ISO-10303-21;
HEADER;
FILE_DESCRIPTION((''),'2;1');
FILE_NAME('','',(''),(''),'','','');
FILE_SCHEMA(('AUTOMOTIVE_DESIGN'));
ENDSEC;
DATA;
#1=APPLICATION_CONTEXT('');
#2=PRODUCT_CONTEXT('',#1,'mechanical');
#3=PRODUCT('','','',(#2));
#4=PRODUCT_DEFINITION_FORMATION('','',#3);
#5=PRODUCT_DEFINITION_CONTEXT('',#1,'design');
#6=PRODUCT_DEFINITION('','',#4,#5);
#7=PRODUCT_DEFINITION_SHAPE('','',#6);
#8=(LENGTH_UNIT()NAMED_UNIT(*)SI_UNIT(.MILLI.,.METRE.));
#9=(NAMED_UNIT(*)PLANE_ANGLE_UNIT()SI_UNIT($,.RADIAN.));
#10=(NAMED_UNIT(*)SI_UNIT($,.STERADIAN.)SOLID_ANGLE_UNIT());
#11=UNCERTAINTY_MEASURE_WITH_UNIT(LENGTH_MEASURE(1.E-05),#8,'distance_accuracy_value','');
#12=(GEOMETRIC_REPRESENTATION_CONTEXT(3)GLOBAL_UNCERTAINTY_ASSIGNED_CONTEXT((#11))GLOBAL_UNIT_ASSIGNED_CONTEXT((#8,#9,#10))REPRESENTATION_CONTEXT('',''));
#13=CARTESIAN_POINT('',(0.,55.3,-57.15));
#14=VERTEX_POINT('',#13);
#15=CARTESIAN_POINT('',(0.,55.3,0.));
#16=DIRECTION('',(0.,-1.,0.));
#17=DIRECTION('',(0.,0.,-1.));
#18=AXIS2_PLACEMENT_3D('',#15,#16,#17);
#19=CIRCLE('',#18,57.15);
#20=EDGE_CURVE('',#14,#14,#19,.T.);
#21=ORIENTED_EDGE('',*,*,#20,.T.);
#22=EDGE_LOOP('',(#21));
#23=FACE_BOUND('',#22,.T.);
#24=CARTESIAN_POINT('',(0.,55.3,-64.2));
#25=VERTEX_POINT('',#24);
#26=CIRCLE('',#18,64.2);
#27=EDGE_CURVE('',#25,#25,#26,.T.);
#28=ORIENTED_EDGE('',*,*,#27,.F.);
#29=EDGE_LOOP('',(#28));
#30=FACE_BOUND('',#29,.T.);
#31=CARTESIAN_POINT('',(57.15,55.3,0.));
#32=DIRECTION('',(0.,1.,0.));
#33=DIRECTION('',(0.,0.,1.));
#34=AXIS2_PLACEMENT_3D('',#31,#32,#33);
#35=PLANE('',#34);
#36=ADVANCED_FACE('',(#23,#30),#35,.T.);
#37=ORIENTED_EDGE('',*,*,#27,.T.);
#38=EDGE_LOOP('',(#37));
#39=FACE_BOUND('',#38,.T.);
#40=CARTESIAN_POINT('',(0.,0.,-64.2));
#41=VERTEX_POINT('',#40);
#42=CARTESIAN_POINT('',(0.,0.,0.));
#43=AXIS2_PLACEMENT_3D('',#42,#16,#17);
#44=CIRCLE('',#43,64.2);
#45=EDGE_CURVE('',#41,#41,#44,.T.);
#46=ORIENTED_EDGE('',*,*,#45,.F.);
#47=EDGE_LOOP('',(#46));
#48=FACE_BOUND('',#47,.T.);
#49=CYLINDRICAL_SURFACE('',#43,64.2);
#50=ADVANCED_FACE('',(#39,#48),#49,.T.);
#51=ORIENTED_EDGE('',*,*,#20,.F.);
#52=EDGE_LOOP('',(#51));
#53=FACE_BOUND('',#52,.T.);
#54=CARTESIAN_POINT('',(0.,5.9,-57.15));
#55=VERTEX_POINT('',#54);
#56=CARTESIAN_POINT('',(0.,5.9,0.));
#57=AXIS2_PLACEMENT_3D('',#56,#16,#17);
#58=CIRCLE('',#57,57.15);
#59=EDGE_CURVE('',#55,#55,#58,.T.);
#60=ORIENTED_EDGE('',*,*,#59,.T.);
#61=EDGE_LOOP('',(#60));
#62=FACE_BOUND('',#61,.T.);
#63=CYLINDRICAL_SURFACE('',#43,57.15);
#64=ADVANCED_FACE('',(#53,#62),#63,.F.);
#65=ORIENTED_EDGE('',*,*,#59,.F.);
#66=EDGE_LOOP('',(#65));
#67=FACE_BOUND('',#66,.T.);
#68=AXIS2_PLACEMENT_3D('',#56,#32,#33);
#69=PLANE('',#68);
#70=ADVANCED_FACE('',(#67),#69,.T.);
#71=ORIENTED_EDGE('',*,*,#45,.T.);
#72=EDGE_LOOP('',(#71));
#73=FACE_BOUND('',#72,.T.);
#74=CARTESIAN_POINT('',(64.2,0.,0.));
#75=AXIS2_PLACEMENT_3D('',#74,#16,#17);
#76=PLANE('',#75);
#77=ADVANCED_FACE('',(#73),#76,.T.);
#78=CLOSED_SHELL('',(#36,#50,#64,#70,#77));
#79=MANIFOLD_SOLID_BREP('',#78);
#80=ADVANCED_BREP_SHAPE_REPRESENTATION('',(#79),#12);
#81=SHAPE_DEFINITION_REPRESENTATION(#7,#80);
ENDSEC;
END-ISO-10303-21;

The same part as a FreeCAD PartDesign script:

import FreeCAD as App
import Part
import Sketcher

V = App.Vector
Q = App.Units.Quantity

doc = App.newDocument("Part")
body = doc.addObject("PartDesign::Body", "Body")

sketch1 = doc.addObject("Sketcher::SketchObject", "Sketch")
body.addObject(sketch1)
sketch1.AttachmentSupport = (doc.XY_Plane, [""])
sketch1.MapMode = "FlatFace"
sketch1.addGeometry(Part.LineSegment(V(0, 6, 0), V(0, 0, 0)), False)
sketch1.addGeometry(Part.LineSegment(V(0, 0, 0), V(64, 0, 0)), False)
sketch1.addGeometry(Part.LineSegment(V(64, 0, 0), V(64, 55, 0)), False)
sketch1.addGeometry(Part.LineSegment(V(64, 55, 0), V(57, 55, 0)), False)
sketch1.addGeometry(Part.LineSegment(V(57, 55, 0), V(57, 6, 0)), False)
sketch1.addGeometry(Part.LineSegment(V(57, 6, 0), V(0, 6, 0)), False)
sketch1.addConstraint(Sketcher.Constraint("Coincident", 0, 2, 1, 1))
sketch1.addConstraint(Sketcher.Constraint("Coincident", 1, 2, 2, 1))
sketch1.addConstraint(Sketcher.Constraint("Coincident", 2, 2, 3, 1))
sketch1.addConstraint(Sketcher.Constraint("Coincident", 3, 2, 4, 1))
sketch1.addConstraint(Sketcher.Constraint("Coincident", 4, 2, 5, 1))
sketch1.addConstraint(Sketcher.Constraint("Coincident", 5, 2, 0, 1))
sketch1.addConstraint(Sketcher.Constraint("Vertical", 0))
sketch1.addConstraint(Sketcher.Constraint("Horizontal", 1))
sketch1.addConstraint(Sketcher.Constraint("Vertical", 2))
sketch1.addConstraint(Sketcher.Constraint("Horizontal", 3))
sketch1.addConstraint(Sketcher.Constraint("Vertical", 4))
sketch1.addConstraint(Sketcher.Constraint("Horizontal", 5))
sketch1.addConstraint(Sketcher.Constraint("Coincident", 0, 2, -1, 1))
sketch1.addConstraint(Sketcher.Constraint("DistanceX", 1, 1, 1, 2, Q("64.2 mm")))
sketch1.addConstraint(Sketcher.Constraint("DistanceY", 0, 2, 0, 1, Q("5.9 mm")))
sketch1.addConstraint(Sketcher.Constraint("DistanceY", 2, 1, 2, 2, Q("55.3 mm")))
sketch1.addConstraint(Sketcher.Constraint("DistanceX", 3, 2, 3, 1, Q("7.05 mm")))
revolution = doc.addObject("PartDesign::Revolution", "Revolution")
body.addObject(revolution)
revolution.Profile = sketch1
revolution.ReferenceAxis = (sketch1, ["V_Axis"])
revolution.Angle = 360

doc.recompute()
